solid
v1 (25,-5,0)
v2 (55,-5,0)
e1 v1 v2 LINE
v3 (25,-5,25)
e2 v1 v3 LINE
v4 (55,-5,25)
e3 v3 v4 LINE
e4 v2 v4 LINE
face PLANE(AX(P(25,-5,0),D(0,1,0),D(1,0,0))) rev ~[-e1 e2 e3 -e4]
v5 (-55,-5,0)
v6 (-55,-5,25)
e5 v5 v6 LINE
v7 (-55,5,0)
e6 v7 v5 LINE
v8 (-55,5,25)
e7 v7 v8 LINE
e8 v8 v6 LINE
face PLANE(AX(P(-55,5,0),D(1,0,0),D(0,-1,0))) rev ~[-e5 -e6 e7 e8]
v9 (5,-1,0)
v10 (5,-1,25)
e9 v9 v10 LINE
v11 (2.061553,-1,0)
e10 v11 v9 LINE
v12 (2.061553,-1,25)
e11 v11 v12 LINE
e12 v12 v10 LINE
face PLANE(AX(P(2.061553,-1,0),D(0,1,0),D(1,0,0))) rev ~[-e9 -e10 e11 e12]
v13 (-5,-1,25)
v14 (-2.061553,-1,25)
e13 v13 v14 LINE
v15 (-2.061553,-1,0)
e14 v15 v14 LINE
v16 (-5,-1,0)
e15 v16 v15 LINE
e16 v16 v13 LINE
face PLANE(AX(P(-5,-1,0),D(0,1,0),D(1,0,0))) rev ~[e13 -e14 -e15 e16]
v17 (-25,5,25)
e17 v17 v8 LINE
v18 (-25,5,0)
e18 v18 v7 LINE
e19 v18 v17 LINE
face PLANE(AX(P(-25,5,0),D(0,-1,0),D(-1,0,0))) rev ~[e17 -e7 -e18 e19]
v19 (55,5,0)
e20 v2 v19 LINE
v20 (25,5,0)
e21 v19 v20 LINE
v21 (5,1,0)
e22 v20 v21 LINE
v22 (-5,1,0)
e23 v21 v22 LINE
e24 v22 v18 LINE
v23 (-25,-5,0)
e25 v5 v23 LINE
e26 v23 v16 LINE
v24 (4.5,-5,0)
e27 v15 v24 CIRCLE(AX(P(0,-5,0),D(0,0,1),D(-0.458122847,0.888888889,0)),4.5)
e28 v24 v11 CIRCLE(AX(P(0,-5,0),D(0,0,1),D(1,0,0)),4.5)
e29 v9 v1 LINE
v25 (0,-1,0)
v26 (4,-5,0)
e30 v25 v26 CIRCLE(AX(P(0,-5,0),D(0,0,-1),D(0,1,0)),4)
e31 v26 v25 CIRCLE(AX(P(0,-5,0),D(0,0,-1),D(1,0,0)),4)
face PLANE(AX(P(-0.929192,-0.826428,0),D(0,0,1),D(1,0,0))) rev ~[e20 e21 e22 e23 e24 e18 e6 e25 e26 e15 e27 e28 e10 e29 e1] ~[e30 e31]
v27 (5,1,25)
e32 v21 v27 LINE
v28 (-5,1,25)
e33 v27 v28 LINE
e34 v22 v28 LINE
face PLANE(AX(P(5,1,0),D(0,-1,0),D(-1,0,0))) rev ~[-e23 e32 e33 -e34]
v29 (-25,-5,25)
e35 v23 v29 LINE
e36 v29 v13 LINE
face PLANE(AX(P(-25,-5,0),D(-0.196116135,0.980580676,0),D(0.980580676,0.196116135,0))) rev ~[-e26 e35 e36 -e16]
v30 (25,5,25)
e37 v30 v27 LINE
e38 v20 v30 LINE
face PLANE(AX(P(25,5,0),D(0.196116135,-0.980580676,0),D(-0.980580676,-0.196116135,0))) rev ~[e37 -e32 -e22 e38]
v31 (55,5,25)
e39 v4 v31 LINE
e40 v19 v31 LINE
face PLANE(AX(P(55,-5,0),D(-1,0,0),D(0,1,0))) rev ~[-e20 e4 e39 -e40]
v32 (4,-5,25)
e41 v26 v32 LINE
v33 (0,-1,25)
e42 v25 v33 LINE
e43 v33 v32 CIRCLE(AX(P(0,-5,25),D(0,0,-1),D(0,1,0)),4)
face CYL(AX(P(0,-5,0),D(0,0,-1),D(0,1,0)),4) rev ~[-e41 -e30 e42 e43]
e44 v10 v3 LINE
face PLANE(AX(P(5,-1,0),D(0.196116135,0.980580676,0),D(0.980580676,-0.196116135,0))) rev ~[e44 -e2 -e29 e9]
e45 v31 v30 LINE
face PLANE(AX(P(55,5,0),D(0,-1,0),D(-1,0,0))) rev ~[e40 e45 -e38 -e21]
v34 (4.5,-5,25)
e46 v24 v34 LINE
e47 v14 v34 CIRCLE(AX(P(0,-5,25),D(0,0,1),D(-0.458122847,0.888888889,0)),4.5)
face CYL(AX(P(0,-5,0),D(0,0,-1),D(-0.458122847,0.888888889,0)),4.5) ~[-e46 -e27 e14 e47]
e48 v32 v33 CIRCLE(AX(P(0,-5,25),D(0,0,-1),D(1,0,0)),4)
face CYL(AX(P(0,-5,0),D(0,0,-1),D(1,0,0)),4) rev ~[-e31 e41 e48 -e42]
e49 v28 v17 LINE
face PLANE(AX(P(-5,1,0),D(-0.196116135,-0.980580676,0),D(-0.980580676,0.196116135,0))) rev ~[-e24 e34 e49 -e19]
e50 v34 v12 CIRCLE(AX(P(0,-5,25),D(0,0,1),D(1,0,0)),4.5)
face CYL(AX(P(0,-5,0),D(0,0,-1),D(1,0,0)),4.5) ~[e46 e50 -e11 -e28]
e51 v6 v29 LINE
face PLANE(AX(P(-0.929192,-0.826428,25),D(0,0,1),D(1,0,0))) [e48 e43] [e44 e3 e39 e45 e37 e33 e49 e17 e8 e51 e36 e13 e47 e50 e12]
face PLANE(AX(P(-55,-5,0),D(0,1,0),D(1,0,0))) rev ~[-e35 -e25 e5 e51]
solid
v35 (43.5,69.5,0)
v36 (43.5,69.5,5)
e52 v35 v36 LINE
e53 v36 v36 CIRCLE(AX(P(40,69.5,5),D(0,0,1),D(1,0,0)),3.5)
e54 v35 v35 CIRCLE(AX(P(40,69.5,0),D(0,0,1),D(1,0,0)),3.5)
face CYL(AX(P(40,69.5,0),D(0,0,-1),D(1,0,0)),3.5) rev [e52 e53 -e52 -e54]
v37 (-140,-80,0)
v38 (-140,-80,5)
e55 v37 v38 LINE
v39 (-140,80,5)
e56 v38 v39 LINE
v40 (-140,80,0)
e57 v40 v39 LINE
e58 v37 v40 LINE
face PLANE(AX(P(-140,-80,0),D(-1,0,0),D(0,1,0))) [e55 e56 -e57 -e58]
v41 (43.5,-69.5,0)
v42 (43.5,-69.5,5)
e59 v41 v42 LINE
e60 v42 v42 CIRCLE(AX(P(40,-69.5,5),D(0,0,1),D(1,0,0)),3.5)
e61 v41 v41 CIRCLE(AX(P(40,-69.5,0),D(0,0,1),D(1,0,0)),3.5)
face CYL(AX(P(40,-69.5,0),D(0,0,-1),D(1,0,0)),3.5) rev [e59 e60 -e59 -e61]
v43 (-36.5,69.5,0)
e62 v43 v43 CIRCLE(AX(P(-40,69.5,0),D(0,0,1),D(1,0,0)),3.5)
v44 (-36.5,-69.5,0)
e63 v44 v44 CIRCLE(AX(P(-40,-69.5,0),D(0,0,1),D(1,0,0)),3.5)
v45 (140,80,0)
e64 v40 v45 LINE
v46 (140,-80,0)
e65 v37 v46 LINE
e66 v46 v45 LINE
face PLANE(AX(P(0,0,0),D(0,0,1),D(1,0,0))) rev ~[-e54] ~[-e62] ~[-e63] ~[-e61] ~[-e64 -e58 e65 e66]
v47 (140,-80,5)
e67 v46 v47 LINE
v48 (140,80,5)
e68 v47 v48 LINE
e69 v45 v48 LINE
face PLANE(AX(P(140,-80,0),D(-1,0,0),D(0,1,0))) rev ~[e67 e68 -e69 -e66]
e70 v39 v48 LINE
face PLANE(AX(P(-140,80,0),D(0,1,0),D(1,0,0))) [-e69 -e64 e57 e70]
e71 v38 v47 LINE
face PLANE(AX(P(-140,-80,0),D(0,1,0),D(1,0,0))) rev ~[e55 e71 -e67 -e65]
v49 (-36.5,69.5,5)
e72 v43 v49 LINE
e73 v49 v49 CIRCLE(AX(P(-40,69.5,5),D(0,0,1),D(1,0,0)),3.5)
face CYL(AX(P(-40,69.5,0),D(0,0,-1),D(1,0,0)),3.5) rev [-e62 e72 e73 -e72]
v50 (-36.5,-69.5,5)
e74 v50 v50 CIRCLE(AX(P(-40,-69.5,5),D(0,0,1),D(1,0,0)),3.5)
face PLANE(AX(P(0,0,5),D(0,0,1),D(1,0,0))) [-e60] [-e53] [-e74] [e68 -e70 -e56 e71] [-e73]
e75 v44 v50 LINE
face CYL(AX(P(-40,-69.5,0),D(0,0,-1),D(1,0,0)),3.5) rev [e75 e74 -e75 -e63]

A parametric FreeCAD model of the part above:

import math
import FreeCAD as App
import Part
import Sketcher

V = App.Vector
Q = App.Units.Quantity

doc = App.newDocument("Part")
body = doc.addObject("PartDesign::Body", "Body")

# Sketch on XY plane
sketch1 = body.newObject("Sketcher::SketchObject", "Sketch")
sketch1.AttachmentSupport = (doc.getObject("XY_Plane"), [""])
sketch1.MapMode = "FlatFace"
sketch1.addGeometry([
    Part.LineSegment(V(-140, 80, 0), V(-140, -80, 0)),  # 0
    Part.LineSegment(V(-140, -80, 0), V(140, -80, 0)),  # 1
    Part.LineSegment(V(140, -80, 0), V(140, 80, 0)),  # 2
    Part.LineSegment(V(140, 80, 0), V(-140, 80, 0)),  # 3
    Part.Circle(V(-40, -69.5, 0), V(0, 0, 1), 3.5),  # 4
    Part.Circle(V(40, -69.5, 0), V(0, 0, 1), 3.5),  # 5
    Part.Circle(V(-40, 69.5, 0), V(0, 0, 1), 3.5),  # 6
    Part.Circle(V(40, 69.5, 0), V(0, 0, 1), 3.5),  # 7
], False)
sketch1.addConstraint([
    Sketcher.Constraint("Coincident", 0, 2, 1, 1),
    Sketcher.Constraint("Coincident", 1, 2, 2, 1),
    Sketcher.Constraint("Coincident", 2, 2, 3, 1),
    Sketcher.Constraint("Coincident", 3, 2, 0, 1),
    Sketcher.Constraint("Vertical", 0),
    Sketcher.Constraint("Horizontal", 1),
    Sketcher.Constraint("Vertical", 2),
    Sketcher.Constraint("Horizontal", 3),
    Sketcher.Constraint("Equal", 4, 5),
    Sketcher.Constraint("Equal", 5, 6),
    Sketcher.Constraint("Equal", 6, 7),
    Sketcher.Constraint("Symmetric", 5, 3, 6, 3, -1, 1),
    Sketcher.Constraint("Symmetric", 4, 3, 7, 3, -1, 1),
    Sketcher.Constraint("Symmetric", 0, 2, 2, 2, -1, 1),
    Sketcher.Constraint("Symmetric", 4, 3, 5, 3, -2),
    Sketcher.Constraint("Diameter", 4, Q("7 mm")),
    Sketcher.Constraint("DistanceX", 1, 1, 1, 2, Q("280 mm")),
    Sketcher.Constraint("DistanceY", 0, 2, 0, 1, Q("160 mm")),
    Sketcher.Constraint("DistanceX", 4, 3, -1, 1, Q("40 mm")),
    Sketcher.Constraint("DistanceY", 4, 3, 6, 3, Q("139 mm")),
])
pad1 = body.newObject("PartDesign::Pad", "Pad")
pad1.Profile = sketch1
pad1.Length = 5
body2 = doc.addObject("PartDesign::Body", "Body001")

# Sketch on XY plane
sketch2 = body2.newObject("Sketcher::SketchObject", "Sketch001")
sketch2.AttachmentSupport = (doc.getObject("XY_Plane001"), [""])
sketch2.MapMode = "FlatFace"
sketch2.addGeometry([
    Part.ArcOfCircle(Part.Circle(V(0, -5, 0), V(0, 0, 1), 4.5), math.radians(117), math.radians(360)),  # 0
    Part.ArcOfCircle(Part.Circle(V(0, -5, 0), V(0, 0, 1), 4.5), math.radians(0), math.radians(63)),  # 1
    Part.LineSegment(V(2.1, -1, 0), V(5, -1, 0)),  # 2
    Part.LineSegment(V(5, -1, 0), V(25, -5, 0)),  # 3
    Part.LineSegment(V(25, -5, 0), V(55, -5, 0)),  # 4
    Part.LineSegment(V(55, -5, 0), V(55, 5, 0)),  # 5
    Part.LineSegment(V(55, 5, 0), V(25, 5, 0)),  # 6
    Part.LineSegment(V(25, 5, 0), V(5, 1, 0)),  # 7
    Part.LineSegment(V(5, 1, 0), V(-5, 1, 0)),  # 8
    Part.LineSegment(V(-5, 1, 0), V(-25, 5, 0)),  # 9
    Part.LineSegment(V(-25, 5, 0), V(-55, 5, 0)),  # 10
    Part.LineSegment(V(-55, 5, 0), V(-55, -5, 0)),  # 11
    Part.LineSegment(V(-55, -5, 0), V(-25, -5, 0)),  # 12
    Part.LineSegment(V(-25, -5, 0), V(-5, -1, 0)),  # 13
    Part.LineSegment(V(-5, -1, 0), V(-2.1, -1, 0)),  # 14
    Part.ArcOfCircle(Part.Circle(V(0, -5, 0), V(0, 0, 1), 4), math.radians(0), math.radians(90)),  # 15
    Part.ArcOfCircle(Part.Circle(V(0, -5, 0), V(0, 0, 1), 4), math.radians(90), math.radians(360)),  # 16
], False)
sketch2.addConstraint([
    Sketcher.Constraint("Tangent", 0, 2, 1, 1),
    Sketcher.Constraint("Coincident", 1, 2, 2, 1),
    Sketcher.Constraint("Coincident", 2, 2, 3, 1),
    Sketcher.Constraint("Coincident", 3, 2, 4, 1),
    Sketcher.Constraint("Coincident", 4, 2, 5, 1),
    Sketcher.Constraint("Coincident", 5, 2, 6, 1),
    Sketcher.Constraint("Coincident", 6, 2, 7, 1),
    Sketcher.Constraint("Coincident", 7, 2, 8, 1),
    Sketcher.Constraint("Coincident", 8, 2, 9, 1),
    Sketcher.Constraint("Coincident", 9, 2, 10, 1),
    Sketcher.Constraint("Coincident", 10, 2, 11, 1),
    Sketcher.Constraint("Coincident", 11, 2, 12, 1),
    Sketcher.Constraint("Coincident", 12, 2, 13, 1),
    Sketcher.Constraint("Coincident", 13, 2, 14, 1),
    Sketcher.Constraint("Coincident", 14, 2, 0, 1),
    Sketcher.Constraint("Tangent", 15, 1, 16, 2),
    Sketcher.Constraint("Coincident", 16, 1, 15, 2),
    Sketcher.Constraint("Horizontal", 2),
    Sketcher.Constraint("Horizontal", 4),
    Sketcher.Constraint("Vertical", 5),
    Sketcher.Constraint("Horizontal", 6),
    Sketcher.Constraint("Horizontal", 8),
    Sketcher.Constraint("Horizontal", 10),
    Sketcher.Constraint("Vertical", 11),
    Sketcher.Constraint("Horizontal", 12),
    Sketcher.Constraint("Horizontal", 14),
    Sketcher.Constraint("Coincident", 15, 3, 0, 3),
    Sketcher.Constraint("Equal", 0, 1),
    Sketcher.Constraint("Symmetric", 2, 2, 8, 2, -1, 1),
    Sketcher.Constraint("Symmetric", 3, 2, 9, 2, -1, 1),
    Sketcher.Constraint("Symmetric", 5, 2, 11, 2, -1, 1),
    Sketcher.Constraint("Symmetric", 7, 2, 13, 2, -1, 1),
    Sketcher.Constraint("Symmetric", 6, 2, 9, 2, -2),
    Sketcher.Constraint("PointOnObject", 0, 3, -2),
    Sketcher.Constraint("PointOnObject", 16, 1, -2),
    Sketcher.Constraint("Parallel", 7, 13),
    Sketcher.Constraint("Horizontal", 16, 3, 0, 2),
    Sketcher.Constraint("Horizontal", 0, 2, 3, 2),
    Sketcher.Constraint("Horizontal", 12, 2, 15, 1),
    Sketcher.Constraint("Horizontal", 14, 2, 16, 1),
    Sketcher.Constraint("Vertical", 2, 2, 7, 2),
    Sketcher.Constraint("Equal", 8, 5),
    Sketcher.Constraint("Radius", 15, Q("4 mm")),
    Sketcher.Constraint("Radius", 0, Q("4.5 mm")),
    Sketcher.Constraint("DistanceX", 4, 1, 4, 2, Q("30 mm")),
    Sketcher.Constraint("DistanceX", 8, 2, 8, 1, Q("10 mm")),
    Sketcher.Constraint("DistanceX", -1, 1, 3, 2, Q("25 mm")),
])
pad2 = body2.newObject("PartDesign::Pad", "Pad001")
pad2.Profile = sketch2
pad2.Length = 25

doc.recompute()
